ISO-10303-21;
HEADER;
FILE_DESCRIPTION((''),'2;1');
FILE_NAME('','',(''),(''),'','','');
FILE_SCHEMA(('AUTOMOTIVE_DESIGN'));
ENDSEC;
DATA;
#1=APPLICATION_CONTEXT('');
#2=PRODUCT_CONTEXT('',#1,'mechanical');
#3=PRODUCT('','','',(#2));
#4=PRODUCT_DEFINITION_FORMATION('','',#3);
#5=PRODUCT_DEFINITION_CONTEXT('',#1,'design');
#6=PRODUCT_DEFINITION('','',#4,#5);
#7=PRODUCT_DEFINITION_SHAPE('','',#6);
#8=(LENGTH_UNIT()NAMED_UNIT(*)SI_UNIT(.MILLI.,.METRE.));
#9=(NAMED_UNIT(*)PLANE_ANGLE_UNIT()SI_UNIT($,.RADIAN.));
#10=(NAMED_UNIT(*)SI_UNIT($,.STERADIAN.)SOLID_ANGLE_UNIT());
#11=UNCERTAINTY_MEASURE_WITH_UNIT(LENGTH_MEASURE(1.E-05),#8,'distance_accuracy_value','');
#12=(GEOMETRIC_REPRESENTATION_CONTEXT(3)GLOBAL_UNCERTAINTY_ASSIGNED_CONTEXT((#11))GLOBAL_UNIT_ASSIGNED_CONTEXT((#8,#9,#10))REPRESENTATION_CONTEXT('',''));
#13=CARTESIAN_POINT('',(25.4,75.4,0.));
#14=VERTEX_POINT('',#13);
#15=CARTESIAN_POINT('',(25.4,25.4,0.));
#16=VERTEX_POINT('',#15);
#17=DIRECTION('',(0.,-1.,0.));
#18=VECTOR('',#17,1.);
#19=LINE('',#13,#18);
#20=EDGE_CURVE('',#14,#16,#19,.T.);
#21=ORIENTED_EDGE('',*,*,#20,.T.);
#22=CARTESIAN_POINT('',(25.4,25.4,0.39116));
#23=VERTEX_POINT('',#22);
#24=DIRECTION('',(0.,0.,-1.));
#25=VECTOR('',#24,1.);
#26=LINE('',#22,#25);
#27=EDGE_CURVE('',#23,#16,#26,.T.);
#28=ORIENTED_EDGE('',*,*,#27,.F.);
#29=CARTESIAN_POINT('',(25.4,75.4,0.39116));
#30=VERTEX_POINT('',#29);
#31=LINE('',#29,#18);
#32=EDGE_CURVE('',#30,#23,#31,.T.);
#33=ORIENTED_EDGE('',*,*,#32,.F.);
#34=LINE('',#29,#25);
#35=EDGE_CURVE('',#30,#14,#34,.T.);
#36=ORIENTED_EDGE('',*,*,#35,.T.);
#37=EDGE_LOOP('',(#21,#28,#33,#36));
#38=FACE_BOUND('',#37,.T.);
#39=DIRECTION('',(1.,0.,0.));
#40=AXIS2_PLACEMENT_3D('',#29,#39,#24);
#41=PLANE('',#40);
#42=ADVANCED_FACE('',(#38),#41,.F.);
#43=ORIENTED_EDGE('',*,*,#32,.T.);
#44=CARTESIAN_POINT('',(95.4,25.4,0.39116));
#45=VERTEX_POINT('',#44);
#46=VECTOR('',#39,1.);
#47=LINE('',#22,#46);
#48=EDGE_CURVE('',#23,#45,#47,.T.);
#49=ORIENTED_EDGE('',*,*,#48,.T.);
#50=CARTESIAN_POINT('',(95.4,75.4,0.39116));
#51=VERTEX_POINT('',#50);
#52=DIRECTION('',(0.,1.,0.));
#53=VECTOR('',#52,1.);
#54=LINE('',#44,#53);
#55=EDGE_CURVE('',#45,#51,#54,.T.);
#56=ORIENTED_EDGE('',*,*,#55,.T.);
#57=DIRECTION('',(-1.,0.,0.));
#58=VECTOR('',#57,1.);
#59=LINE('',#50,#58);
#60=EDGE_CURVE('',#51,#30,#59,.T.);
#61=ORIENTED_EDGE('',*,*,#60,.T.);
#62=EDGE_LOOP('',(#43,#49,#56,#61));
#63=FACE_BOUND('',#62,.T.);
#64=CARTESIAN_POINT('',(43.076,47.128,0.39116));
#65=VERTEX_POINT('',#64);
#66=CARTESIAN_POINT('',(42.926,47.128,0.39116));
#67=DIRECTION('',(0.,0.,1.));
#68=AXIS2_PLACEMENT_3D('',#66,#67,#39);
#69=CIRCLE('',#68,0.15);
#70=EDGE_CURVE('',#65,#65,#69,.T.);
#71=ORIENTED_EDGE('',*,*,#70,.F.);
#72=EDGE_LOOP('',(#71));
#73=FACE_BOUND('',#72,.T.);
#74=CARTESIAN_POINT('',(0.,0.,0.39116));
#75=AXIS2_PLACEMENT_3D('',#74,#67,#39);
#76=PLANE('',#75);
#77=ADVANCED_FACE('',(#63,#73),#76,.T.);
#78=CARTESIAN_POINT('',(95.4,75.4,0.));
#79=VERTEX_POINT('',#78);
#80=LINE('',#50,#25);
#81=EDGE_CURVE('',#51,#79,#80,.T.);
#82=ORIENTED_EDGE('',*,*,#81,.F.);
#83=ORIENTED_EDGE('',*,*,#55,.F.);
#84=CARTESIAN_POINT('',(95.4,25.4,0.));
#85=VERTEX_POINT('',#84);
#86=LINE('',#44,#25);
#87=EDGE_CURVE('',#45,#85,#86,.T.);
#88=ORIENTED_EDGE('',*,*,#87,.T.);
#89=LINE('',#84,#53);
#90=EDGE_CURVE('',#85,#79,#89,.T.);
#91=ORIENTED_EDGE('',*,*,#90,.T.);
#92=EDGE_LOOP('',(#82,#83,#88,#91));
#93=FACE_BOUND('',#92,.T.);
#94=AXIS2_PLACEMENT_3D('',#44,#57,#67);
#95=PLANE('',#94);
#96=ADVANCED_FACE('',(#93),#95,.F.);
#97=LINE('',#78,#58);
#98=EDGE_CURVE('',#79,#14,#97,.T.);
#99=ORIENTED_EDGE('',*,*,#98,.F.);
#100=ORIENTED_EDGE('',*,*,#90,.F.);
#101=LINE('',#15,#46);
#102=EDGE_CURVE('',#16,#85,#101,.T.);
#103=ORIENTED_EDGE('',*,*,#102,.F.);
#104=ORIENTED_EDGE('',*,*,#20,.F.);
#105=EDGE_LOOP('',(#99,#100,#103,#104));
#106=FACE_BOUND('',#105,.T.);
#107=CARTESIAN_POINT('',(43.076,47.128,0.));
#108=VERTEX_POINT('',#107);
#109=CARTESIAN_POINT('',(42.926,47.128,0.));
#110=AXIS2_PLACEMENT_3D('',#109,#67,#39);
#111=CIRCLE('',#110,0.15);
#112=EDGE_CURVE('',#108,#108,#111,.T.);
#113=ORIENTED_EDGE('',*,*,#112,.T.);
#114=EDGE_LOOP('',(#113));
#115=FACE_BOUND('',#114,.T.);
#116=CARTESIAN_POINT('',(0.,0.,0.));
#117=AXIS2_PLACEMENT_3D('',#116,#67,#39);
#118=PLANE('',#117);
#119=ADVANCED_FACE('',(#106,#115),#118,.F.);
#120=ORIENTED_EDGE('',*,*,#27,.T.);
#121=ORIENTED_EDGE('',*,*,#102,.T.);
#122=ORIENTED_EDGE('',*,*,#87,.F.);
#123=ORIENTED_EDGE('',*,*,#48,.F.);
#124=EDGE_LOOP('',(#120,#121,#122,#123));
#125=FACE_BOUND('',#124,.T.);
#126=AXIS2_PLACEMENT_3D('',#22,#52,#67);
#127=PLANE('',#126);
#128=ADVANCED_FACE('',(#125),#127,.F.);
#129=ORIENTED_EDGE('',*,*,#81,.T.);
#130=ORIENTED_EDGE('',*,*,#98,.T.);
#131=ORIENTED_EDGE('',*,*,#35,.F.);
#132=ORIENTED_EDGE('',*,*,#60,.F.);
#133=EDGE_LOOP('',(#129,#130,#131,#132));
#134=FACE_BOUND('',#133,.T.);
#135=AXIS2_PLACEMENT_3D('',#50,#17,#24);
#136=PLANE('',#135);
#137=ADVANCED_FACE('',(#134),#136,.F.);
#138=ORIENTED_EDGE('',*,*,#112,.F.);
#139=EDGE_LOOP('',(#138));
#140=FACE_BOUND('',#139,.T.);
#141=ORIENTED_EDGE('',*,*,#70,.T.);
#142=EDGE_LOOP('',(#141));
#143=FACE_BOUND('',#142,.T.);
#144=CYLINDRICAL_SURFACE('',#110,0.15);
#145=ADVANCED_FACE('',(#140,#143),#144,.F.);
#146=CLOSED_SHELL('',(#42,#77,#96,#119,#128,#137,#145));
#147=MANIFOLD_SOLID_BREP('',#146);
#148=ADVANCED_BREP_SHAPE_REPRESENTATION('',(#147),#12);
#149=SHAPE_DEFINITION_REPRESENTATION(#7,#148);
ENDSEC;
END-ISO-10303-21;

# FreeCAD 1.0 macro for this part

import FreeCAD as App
import Part
import Sketcher

V = App.Vector

doc = App.newDocument("Part")
params = doc.addObject("Spreadsheet::Sheet", "Params")
for row, (alias, value) in enumerate([
    ("sketch1_width", "70 mm"),
    ("sketch1_height", "50 mm"),
    ("pad1_length", "0.39116 mm"),
    ("sketch2_diameter", "0.3 mm"),
    ("pocket1_length", "0.39116 mm"),
], start=1):
    params.set(f"A{row}", alias)
    params.set(f"B{row}", "=" + value)
    params.setAlias(f"B{row}", alias)

body = doc.addObject("PartDesign::Body", "Body")

sketch1 = body.newObject("Sketcher::SketchObject", "Sketch")
sketch1.AttachmentSupport = (doc.getObject("XY_Plane"), [""])
sketch1.MapMode = "FlatFace"
sketch1.addGeometry([
    Part.LineSegment(V(25, 75, 0), V(25, 25, 0)),
    Part.LineSegment(V(25, 25, 0), V(95, 25, 0)),
    Part.LineSegment(V(95, 25, 0), V(95, 75, 0)),
    Part.LineSegment(V(95, 75, 0), V(25, 75, 0)),
], False)
sketch1.addConstraint([
    Sketcher.Constraint("Coincident", 0, 2, 1, 1),
    Sketcher.Constraint("Coincident", 1, 2, 2, 1),
    Sketcher.Constraint("Coincident", 2, 2, 3, 1),
    Sketcher.Constraint("Coincident", 3, 2, 0, 1),
    Sketcher.Constraint("Vertical", 0),
    Sketcher.Constraint("Horizontal", 1),
    Sketcher.Constraint("Vertical", 2),
    Sketcher.Constraint("Horizontal", 3),
    Sketcher.Constraint("DistanceX", 1, 1, 1, 2, 70.0),
    Sketcher.Constraint("DistanceY", 0, 2, 0, 1, 50.0),
    Sketcher.Constraint("DistanceX", -1, 1, 0, 2, 25.4),
    Sketcher.Constraint("DistanceY", -1, 1, 0, 2, 25.4),
])
sketch1.setExpression("Constraints[8]", "Params.sketch1_width")
sketch1.setExpression("Constraints[9]", "Params.sketch1_height")
pad1 = body.newObject("PartDesign::Pad", "Pad")
pad1.Profile = sketch1
pad1.setExpression("Length", "Params.pad1_length")

sketch2 = body.newObject("Sketcher::SketchObject", "Sketch001")
sketch2.AttachmentSupport = (doc.getObject("XY_Plane"), [""])
sketch2.MapMode = "FlatFace"
sketch2.AttachmentOffset = App.Placement(V(0, 0, 0.39116), App.Rotation())
sketch2.addGeometry(Part.Circle(V(42.93, 47.13, 0), V(0, 0, 1), 0.15), False)
sketch2.addConstraint([
    Sketcher.Constraint("Diameter", 0, 0.3),
    Sketcher.Constraint("DistanceX", -1, 1, 0, 3, 42.926),
    Sketcher.Constraint("DistanceY", -1, 1, 0, 3, 47.128),
])
sketch2.setExpression("Constraints[0]", "Params.sketch2_diameter")
pocket1 = body.newObject("PartDesign::Pocket", "Pocket")
pocket1.Profile = sketch2
pocket1.setExpression("Length", "Params.pocket1_length")

doc.recompute()
